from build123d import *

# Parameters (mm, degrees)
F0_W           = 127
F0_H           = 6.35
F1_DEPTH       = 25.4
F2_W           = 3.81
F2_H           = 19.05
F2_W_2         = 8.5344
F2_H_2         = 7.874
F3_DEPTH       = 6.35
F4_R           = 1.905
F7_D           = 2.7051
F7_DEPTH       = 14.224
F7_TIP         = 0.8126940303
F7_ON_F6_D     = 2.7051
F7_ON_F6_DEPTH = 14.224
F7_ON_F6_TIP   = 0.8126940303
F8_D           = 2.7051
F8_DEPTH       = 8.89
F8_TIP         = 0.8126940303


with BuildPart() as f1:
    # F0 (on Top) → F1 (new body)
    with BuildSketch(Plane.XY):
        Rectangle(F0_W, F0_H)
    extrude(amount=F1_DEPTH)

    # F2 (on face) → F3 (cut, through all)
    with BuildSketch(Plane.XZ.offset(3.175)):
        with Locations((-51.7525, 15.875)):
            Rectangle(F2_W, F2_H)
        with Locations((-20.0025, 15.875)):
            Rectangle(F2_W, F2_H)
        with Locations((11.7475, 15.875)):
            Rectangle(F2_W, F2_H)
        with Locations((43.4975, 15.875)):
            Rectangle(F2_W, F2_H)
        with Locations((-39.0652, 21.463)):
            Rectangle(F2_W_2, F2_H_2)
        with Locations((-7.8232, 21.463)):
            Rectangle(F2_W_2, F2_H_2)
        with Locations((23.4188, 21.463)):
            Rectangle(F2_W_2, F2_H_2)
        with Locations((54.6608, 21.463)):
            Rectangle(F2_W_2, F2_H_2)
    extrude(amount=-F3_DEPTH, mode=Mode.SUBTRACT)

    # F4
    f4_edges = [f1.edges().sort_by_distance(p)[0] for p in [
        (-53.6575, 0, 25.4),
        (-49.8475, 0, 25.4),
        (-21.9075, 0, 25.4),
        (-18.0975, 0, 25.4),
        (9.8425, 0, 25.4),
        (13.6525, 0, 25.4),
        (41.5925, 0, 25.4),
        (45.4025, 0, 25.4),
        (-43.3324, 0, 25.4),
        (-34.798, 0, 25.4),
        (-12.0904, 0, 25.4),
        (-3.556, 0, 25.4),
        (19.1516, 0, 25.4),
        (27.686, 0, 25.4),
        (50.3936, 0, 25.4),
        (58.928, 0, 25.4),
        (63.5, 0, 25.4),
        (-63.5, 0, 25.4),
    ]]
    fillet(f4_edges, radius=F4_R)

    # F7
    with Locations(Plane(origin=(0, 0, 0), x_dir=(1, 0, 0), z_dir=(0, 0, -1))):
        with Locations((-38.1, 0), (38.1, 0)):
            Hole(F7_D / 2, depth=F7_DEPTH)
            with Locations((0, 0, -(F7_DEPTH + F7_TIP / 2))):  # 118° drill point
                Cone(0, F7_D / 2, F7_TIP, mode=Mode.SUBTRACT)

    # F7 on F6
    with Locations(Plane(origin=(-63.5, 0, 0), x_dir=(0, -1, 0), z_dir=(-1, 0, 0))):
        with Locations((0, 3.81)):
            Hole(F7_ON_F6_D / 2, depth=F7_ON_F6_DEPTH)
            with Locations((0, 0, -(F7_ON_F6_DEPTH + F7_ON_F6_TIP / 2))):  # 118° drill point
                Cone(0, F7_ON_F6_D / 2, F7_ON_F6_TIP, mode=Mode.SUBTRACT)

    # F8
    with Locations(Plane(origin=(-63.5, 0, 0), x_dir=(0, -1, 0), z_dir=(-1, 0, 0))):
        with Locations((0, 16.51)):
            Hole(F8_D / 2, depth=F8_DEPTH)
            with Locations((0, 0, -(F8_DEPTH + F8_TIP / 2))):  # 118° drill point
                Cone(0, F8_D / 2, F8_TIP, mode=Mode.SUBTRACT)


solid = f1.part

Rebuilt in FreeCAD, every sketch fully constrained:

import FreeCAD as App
import Part
import Sketcher

V = App.Vector
Q = App.Units.Quantity


def edges_at(feature, points):
    """Names of the edges that pass closest to the given points."""
    edges = feature.Shape.Edges
    near = lambda p: min(range(len(edges)), key=lambda i: edges[i].distToShape(Part.Vertex(*p))[0])
    return sorted({f"Edge{near(p) + 1}" for p in points})

doc = App.newDocument("Part")
body = doc.addObject("PartDesign::Body", "Body")

# Sketch on XY plane
sketch1 = body.newObject("Sketcher::SketchObject", "Sketch")
sketch1.AttachmentSupport = (doc.getObject("XY_Plane"), [""])
sketch1.MapMode = "FlatFace"
sketch1.addGeometry([
    Part.LineSegment(V(-63.5, 3.175, 0), V(-63.5, -3.175, 0)),
    Part.LineSegment(V(-63.5, -3.175, 0), V(63.5, -3.175, 0)),
    Part.LineSegment(V(63.5, -3.175, 0), V(63.5, 3.175, 0)),
    Part.LineSegment(V(63.5, 3.175, 0), V(-63.5, 3.175, 0)),
], False)
sketch1.addConstraint([
    Sketcher.Constraint("Coincident", 0, 2, 1, 1),
    Sketcher.Constraint("Coincident", 1, 2, 2, 1),
    Sketcher.Constraint("Coincident", 2, 2, 3, 1),
    Sketcher.Constraint("Coincident", 3, 2, 0, 1),
    Sketcher.Constraint("Vertical", 0),
    Sketcher.Constraint("Horizontal", 1),
    Sketcher.Constraint("Vertical", 2),
    Sketcher.Constraint("Horizontal", 3),
    Sketcher.Constraint("Symmetric", 0, 2, 2, 2, -1, 1),
    Sketcher.Constraint("DistanceX", 1, 1, 1, 2, Q("5 in")),
    Sketcher.Constraint("DistanceY", 0, 2, 0, 1, Q("0.25 in")),
])
pad1 = body.newObject("PartDesign::Pad", "Pad")
pad1.Profile = sketch1
pad1.Length = Q("1 in")

# Sketch on XZ plane
sketch2 = body.newObject("Sketcher::SketchObject", "Sketch001")
sketch2.AttachmentSupport = (doc.getObject("XZ_Plane"), [""])
sketch2.MapMode = "FlatFace"
sketch2.AttachmentOffset = App.Placement(V(0, 0, 0.125 * 25.4), App.Rotation())
sketch2.addGeometry([
    Part.LineSegment(V(-53.6575, 25.4, 0), V(-53.6575, 6.35, 0)),  # 0
    Part.LineSegment(V(-53.6575, 6.35, 0), V(-49.8475, 6.35, 0)),  # 1
    Part.LineSegment(V(-49.8475, 6.35, 0), V(-49.8475, 25.4, 0)),  # 2
    Part.LineSegment(V(-49.8475, 25.4, 0), V(-53.6575, 25.4, 0)),  # 3
    Part.LineSegment(V(-21.9075, 25.4, 0), V(-21.9075, 6.35, 0)),  # 4
    Part.LineSegment(V(-21.9075, 6.35, 0), V(-18.0975, 6.35, 0)),  # 5
    Part.LineSegment(V(-18.0975, 6.35, 0), V(-18.0975, 25.4, 0)),  # 6
    Part.LineSegment(V(-18.0975, 25.4, 0), V(-21.9075, 25.4, 0)),  # 7
    Part.LineSegment(V(9.8425, 25.4, 0), V(9.8425, 6.35, 0)),  # 8
    Part.LineSegment(V(9.8425, 6.35, 0), V(13.6525, 6.35, 0)),  # 9
    Part.LineSegment(V(13.6525, 6.35, 0), V(13.6525, 25.4, 0)),  # 10
    Part.LineSegment(V(13.6525, 25.4, 0), V(9.8425, 25.4, 0)),  # 11
    Part.LineSegment(V(41.5925, 25.4, 0), V(41.5925, 6.35, 0)),  # 12
    Part.LineSegment(V(41.5925, 6.35, 0), V(45.4025, 6.35, 0)),  # 13
    Part.LineSegment(V(45.4025, 6.35, 0), V(45.4025, 25.4, 0)),  # 14
    Part.LineSegment(V(45.4025, 25.4, 0), V(41.5925, 25.4, 0)),  # 15
    Part.LineSegment(V(-43.3324, 25.4, 0), V(-43.3324, 17.526, 0)),  # 16
    Part.LineSegment(V(-43.3324, 17.526, 0), V(-34.798, 17.526, 0)),  # 17
    Part.LineSegment(V(-34.798, 17.526, 0), V(-34.798, 25.4, 0)),  # 18
    Part.LineSegment(V(-34.798, 25.4, 0), V(-43.3324, 25.4, 0)),  # 19
    Part.LineSegment(V(-12.0904, 25.4, 0), V(-12.0904, 17.526, 0)),  # 20
    Part.LineSegment(V(-12.0904, 17.526, 0), V(-3.556, 17.526, 0)),  # 21
    Part.LineSegment(V(-3.556, 17.526, 0), V(-3.556, 25.4, 0)),  # 22
    Part.LineSegment(V(-3.556, 25.4, 0), V(-12.0904, 25.4, 0)),  # 23
    Part.LineSegment(V(19.1516, 25.4, 0), V(19.1516, 17.526, 0)),  # 24
    Part.LineSegment(V(19.1516, 17.526, 0), V(27.686, 17.526, 0)),  # 25
    Part.LineSegment(V(27.686, 17.526, 0), V(27.686, 25.4, 0)),  # 26
    Part.LineSegment(V(27.686, 25.4, 0), V(19.1516, 25.4, 0)),  # 27
    Part.LineSegment(V(50.3936, 25.4, 0), V(50.3936, 17.526, 0)),  # 28
    Part.LineSegment(V(50.3936, 17.526, 0), V(58.928, 17.526, 0)),  # 29
    Part.LineSegment(V(58.928, 17.526, 0), V(58.928, 25.4, 0)),  # 30
    Part.LineSegment(V(58.928, 25.4, 0), V(50.3936, 25.4, 0)),  # 31
], False)
sketch2.addConstraint([
    Sketcher.Constraint("Coincident", 0, 2, 1, 1),
    Sketcher.Constraint("Coincident", 1, 2, 2, 1),
    Sketcher.Constraint("Coincident", 2, 2, 3, 1),
    Sketcher.Constraint("Coincident", 3, 2, 0, 1),
    Sketcher.Constraint("Coincident", 4, 2, 5, 1),
    Sketcher.Constraint("Coincident", 5, 2, 6, 1),
    Sketcher.Constraint("Coincident", 6, 2, 7, 1),
    Sketcher.Constraint("Coincident", 7, 2, 4, 1),
    Sketcher.Constraint("Coincident", 8, 2, 9, 1),
    Sketcher.Constraint("Coincident", 9, 2, 10, 1),
    Sketcher.Constraint("Coincident", 10, 2, 11, 1),
    Sketcher.Constraint("Coincident", 11, 2, 8, 1),
    Sketcher.Constraint("Coincident", 12, 2, 13, 1),
    Sketcher.Constraint("Coincident", 13, 2, 14, 1),
    Sketcher.Constraint("Coincident", 14, 2, 15, 1),
    Sketcher.Constraint("Coincident", 15, 2, 12, 1),
    Sketcher.Constraint("Coincident", 16, 2, 17, 1),
    Sketcher.Constraint("Coincident", 17, 2, 18, 1),
    Sketcher.Constraint("Coincident", 18, 2, 19, 1),
    Sketcher.Constraint("Coincident", 19, 2, 16, 1),
    Sketcher.Constraint("Coincident", 20, 2, 21, 1),
    Sketcher.Constraint("Coincident", 21, 2, 22, 1),
    Sketcher.Constraint("Coincident", 22, 2, 23, 1),
    Sketcher.Constraint("Coincident", 23, 2, 20, 1),
    Sketcher.Constraint("Coincident", 24, 2, 25, 1),
    Sketcher.Constraint("Coincident", 25, 2, 26, 1),
    Sketcher.Constraint("Coincident", 26, 2, 27, 1),
    Sketcher.Constraint("Coincident", 27, 2, 24, 1),
    Sketcher.Constraint("Coincident", 28, 2, 29, 1),
    Sketcher.Constraint("Coincident", 29, 2, 30, 1),
    Sketcher.Constraint("Coincident", 30, 2, 31, 1),
    Sketcher.Constraint("Coincident", 31, 2, 28, 1),
    Sketcher.Constraint("Vertical", 0),
    Sketcher.Constraint("Horizontal", 1),
    Sketcher.Constraint("Vertical", 2),
    Sketcher.Constraint("Horizontal", 3),
    Sketcher.Constraint("Vertical", 4),
    Sketcher.Constraint("Horizontal", 5),
    Sketcher.Constraint("Vertical", 6),
    Sketcher.Constraint("Horizontal", 7),
    Sketcher.Constraint("Vertical", 8),
    Sketcher.Constraint("Horizontal", 9),
    Sketcher.Constraint("Vertical", 10),
    Sketcher.Constraint("Horizontal", 11),
    Sketcher.Constraint("Vertical", 12),
    Sketcher.Constraint("Horizontal", 13),
    Sketcher.Constraint("Vertical", 14),
    Sketcher.Constraint("Horizontal", 15),
    Sketcher.Constraint("Vertical", 16),
    Sketcher.Constraint("Horizontal", 17),
    Sketcher.Constraint("Vertical", 18),
    Sketcher.Constraint("Horizontal", 19),
    Sketcher.Constraint("Vertical", 20),
    Sketcher.Constraint("Horizontal", 21),
    Sketcher.Constraint("Vertical", 22),
    Sketcher.Constraint("Horizontal", 23),
    Sketcher.Constraint("Vertical", 24),
    Sketcher.Constraint("Horizontal", 25),
    Sketcher.Constraint("Vertical", 26),
    Sketcher.Constraint("Horizontal", 27),
    Sketcher.Constraint("Vertical", 28),
    Sketcher.Constraint("Horizontal", 29),
    Sketcher.Constraint("Vertical", 30),
    Sketcher.Constraint("Horizontal", 31),
    Sketcher.Constraint("Horizontal", 1, 2, 4, 2),
    Sketcher.Constraint("Horizontal", 3, 2, 6, 2),
    Sketcher.Constraint("Horizontal", 5, 2, 8, 2),
    Sketcher.Constraint("Horizontal", 7, 2, 10, 2),
    Sketcher.Constraint("Horizontal", 9, 2, 12, 2),
    Sketcher.Constraint("Horizontal", 11, 2, 14, 2),
    Sketcher.Constraint("Horizontal", 15, 2, 18, 2),
    Sketcher.Constraint("Horizontal", 17, 2, 20, 2),
    Sketcher.Constraint("Horizontal", 19, 2, 22, 2),
    Sketcher.Constraint("Horizontal", 21, 2, 24, 2),
    Sketcher.Constraint("Horizontal", 23, 2, 26, 2),
    Sketcher.Constraint("Horizontal", 25, 2, 28, 2),
    Sketcher.Constraint("Horizontal", 27, 2, 30, 2),
    Sketcher.Constraint("Equal", 3, 5),
    Sketcher.Constraint("Equal", 7, 9),
    Sketcher.Constraint("Equal", 11, 13),
    Sketcher.Constraint("Equal", 19, 21),
    Sketcher.Constraint("Equal", 23, 25),
    Sketcher.Constraint("Equal", 27, 29),
    Sketcher.Constraint("DistanceY", -1, 1, 2, 2, Q("1 in")),
    Sketcher.Constraint("DistanceX", 1, 1, 1, 2, Q("0.15 in")),
    Sketcher.Constraint("DistanceY", 0, 2, 0, 1, Q("0.75 in")),
    Sketcher.Constraint("DistanceY", 16, 2, 16, 1, Q("0.31 in")),
    Sketcher.Constraint("DistanceX", 1, 2, 4, 2, Q("1.1 in")),
    Sketcher.Constraint("DistanceX", 5, 2, 8, 2, Q("1.1 in")),
    Sketcher.Constraint("DistanceX", 9, 2, 12, 2, Q("1.1 in")),
    Sketcher.Constraint("DistanceX", 17, 1, 17, 2, Q("0.336 in")),
    Sketcher.Constraint("DistanceX", 17, 2, -1, 1, Q("1.37 in")),
    Sketcher.Constraint("DistanceX", 21, 2, -1, 1, Q("0.14 in")),
    Sketcher.Constraint("DistanceX", -1, 1, 25, 2, Q("1.09 in")),
    Sketcher.Constraint("DistanceX", -1, 1, 29, 2, Q("2.32 in")),
    Sketcher.Constraint("DistanceX", 0, 2, -1, 1, Q("2.1125 in")),
])
pocket1 = body.newObject("PartDesign::Pocket", "Pocket")
pocket1.Profile = sketch2
pocket1.Type = "ThroughAll"
doc.recompute()

fillet = body.newObject("PartDesign::Fillet", "Fillet")
fillet.Base = (pocket1, edges_at(pocket1, [
    (-53.657, 0, 25.4),
    (-49.847, 0, 25.4),
    (-21.907, 0, 25.4),
    (-18.098, 0, 25.4),
    (9.842, 0, 25.4),
    (13.652, 0, 25.4),
    (41.593, 0, 25.4),
    (45.403, 0, 25.4),
    (-43.332, 0, 25.4),
    (-34.798, 0, 25.4),
    (-12.09, 0, 25.4),
    (-3.556, 0, 25.4),
    (19.152, 0, 25.4),
    (27.686, 0, 25.4),
    (50.394, 0, 25.4),
    (58.928, 0, 25.4),
    (63.5, 0, 25.4),
    (-63.5, 0, 25.4),
]))
fillet.Radius = Q("0.075 in")

# Sketch on XY plane
sketch3 = body.newObject("Sketcher::SketchObject", "Sketch002")
sketch3.AttachmentSupport = (doc.getObject("XY_Plane"), [""])
sketch3.MapMode = "FlatFace"
sketch3.addGeometry([
    Part.Circle(V(-38.1, 0, 0), V(0, 0, 1), 1.35255),
    Part.Circle(V(38.1, 0, 0), V(0, 0, 1), 1.35255),
], False)
sketch3.addConstraint([
    Sketcher.Constraint("Equal", 0, 1),
    Sketcher.Constraint("Symmetric", 0, 3, 1, 3, -1, 1),
    Sketcher.Constraint("PointOnObject", 0, 3, -1),
    Sketcher.Constraint("DistanceX", 0, 3, 1, 3, Q("3 in")),
    Sketcher.Constraint("Diameter", 0, Q("0.1065 in")),
])
doc.recompute()
hole = body.newObject("PartDesign::Hole", "Hole")
hole.Profile = sketch3
hole.ThreadType = "None"
hole.Diameter = Q("0.1065 in")
hole.DepthType = "Dimension"
hole.Depth = Q("0.56 in")
hole.DrillPoint = "Angled"
hole.DrillPointAngle = 118
hole.Reversed = True

# Sketch on YZ plane
sketch4 = body.newObject("Sketcher::SketchObject", "Sketch003")
sketch4.AttachmentSupport = (doc.getObject("YZ_Plane"), [""])
sketch4.MapMode = "FlatFace"
sketch4.AttachmentOffset = App.Placement(V(0, 0, -2.5 * 25.4), App.Rotation())
sketch4.addGeometry(Part.Circle(V(0, 3.81, 0), V(0, 0, 1), 1.35255), False)
sketch4.addConstraint([
    Sketcher.Constraint("PointOnObject", 0, 3, -2),
    Sketcher.Constraint("Diameter", 0, Q("0.1065 in")),
    Sketcher.Constraint("DistanceY", -1, 1, 0, 3, Q("0.15 in")),
])
doc.recompute()
hole2 = body.newObject("PartDesign::Hole", "Hole001")
hole2.Profile = sketch4
hole2.ThreadType = "None"
hole2.Diameter = Q("0.1065 in")
hole2.DepthType = "Dimension"
hole2.Depth = Q("0.56 in")
hole2.DrillPoint = "Angled"
hole2.DrillPointAngle = 118
hole2.Reversed = True

# Sketch on YZ plane
sketch5 = body.newObject("Sketcher::SketchObject", "Sketch004")
sketch5.AttachmentSupport = (doc.getObject("YZ_Plane"), [""])
sketch5.MapMode = "FlatFace"
sketch5.AttachmentOffset = App.Placement(V(0, 0, -2.5 * 25.4), App.Rotation())
sketch5.addGeometry(Part.Circle(V(0, 16.51, 0), V(0, 0, 1), 1.35255), False)
sketch5.addConstraint([
    Sketcher.Constraint("PointOnObject", 0, 3, -2),
    Sketcher.Constraint("Diameter", 0, Q("0.1065 in")),
    Sketcher.Constraint("DistanceY", -1, 1, 0, 3, Q("0.65 in")),
])
doc.recompute()
hole3 = body.newObject("PartDesign::Hole", "Hole002")
hole3.Profile = sketch5
hole3.ThreadType = "None"
hole3.Diameter = Q("0.1065 in")
hole3.DepthType = "Dimension"
hole3.Depth = Q("0.35 in")
hole3.DrillPoint = "Angled"
hole3.DrillPointAngle = 118
hole3.Reversed = True

doc.recompute()
